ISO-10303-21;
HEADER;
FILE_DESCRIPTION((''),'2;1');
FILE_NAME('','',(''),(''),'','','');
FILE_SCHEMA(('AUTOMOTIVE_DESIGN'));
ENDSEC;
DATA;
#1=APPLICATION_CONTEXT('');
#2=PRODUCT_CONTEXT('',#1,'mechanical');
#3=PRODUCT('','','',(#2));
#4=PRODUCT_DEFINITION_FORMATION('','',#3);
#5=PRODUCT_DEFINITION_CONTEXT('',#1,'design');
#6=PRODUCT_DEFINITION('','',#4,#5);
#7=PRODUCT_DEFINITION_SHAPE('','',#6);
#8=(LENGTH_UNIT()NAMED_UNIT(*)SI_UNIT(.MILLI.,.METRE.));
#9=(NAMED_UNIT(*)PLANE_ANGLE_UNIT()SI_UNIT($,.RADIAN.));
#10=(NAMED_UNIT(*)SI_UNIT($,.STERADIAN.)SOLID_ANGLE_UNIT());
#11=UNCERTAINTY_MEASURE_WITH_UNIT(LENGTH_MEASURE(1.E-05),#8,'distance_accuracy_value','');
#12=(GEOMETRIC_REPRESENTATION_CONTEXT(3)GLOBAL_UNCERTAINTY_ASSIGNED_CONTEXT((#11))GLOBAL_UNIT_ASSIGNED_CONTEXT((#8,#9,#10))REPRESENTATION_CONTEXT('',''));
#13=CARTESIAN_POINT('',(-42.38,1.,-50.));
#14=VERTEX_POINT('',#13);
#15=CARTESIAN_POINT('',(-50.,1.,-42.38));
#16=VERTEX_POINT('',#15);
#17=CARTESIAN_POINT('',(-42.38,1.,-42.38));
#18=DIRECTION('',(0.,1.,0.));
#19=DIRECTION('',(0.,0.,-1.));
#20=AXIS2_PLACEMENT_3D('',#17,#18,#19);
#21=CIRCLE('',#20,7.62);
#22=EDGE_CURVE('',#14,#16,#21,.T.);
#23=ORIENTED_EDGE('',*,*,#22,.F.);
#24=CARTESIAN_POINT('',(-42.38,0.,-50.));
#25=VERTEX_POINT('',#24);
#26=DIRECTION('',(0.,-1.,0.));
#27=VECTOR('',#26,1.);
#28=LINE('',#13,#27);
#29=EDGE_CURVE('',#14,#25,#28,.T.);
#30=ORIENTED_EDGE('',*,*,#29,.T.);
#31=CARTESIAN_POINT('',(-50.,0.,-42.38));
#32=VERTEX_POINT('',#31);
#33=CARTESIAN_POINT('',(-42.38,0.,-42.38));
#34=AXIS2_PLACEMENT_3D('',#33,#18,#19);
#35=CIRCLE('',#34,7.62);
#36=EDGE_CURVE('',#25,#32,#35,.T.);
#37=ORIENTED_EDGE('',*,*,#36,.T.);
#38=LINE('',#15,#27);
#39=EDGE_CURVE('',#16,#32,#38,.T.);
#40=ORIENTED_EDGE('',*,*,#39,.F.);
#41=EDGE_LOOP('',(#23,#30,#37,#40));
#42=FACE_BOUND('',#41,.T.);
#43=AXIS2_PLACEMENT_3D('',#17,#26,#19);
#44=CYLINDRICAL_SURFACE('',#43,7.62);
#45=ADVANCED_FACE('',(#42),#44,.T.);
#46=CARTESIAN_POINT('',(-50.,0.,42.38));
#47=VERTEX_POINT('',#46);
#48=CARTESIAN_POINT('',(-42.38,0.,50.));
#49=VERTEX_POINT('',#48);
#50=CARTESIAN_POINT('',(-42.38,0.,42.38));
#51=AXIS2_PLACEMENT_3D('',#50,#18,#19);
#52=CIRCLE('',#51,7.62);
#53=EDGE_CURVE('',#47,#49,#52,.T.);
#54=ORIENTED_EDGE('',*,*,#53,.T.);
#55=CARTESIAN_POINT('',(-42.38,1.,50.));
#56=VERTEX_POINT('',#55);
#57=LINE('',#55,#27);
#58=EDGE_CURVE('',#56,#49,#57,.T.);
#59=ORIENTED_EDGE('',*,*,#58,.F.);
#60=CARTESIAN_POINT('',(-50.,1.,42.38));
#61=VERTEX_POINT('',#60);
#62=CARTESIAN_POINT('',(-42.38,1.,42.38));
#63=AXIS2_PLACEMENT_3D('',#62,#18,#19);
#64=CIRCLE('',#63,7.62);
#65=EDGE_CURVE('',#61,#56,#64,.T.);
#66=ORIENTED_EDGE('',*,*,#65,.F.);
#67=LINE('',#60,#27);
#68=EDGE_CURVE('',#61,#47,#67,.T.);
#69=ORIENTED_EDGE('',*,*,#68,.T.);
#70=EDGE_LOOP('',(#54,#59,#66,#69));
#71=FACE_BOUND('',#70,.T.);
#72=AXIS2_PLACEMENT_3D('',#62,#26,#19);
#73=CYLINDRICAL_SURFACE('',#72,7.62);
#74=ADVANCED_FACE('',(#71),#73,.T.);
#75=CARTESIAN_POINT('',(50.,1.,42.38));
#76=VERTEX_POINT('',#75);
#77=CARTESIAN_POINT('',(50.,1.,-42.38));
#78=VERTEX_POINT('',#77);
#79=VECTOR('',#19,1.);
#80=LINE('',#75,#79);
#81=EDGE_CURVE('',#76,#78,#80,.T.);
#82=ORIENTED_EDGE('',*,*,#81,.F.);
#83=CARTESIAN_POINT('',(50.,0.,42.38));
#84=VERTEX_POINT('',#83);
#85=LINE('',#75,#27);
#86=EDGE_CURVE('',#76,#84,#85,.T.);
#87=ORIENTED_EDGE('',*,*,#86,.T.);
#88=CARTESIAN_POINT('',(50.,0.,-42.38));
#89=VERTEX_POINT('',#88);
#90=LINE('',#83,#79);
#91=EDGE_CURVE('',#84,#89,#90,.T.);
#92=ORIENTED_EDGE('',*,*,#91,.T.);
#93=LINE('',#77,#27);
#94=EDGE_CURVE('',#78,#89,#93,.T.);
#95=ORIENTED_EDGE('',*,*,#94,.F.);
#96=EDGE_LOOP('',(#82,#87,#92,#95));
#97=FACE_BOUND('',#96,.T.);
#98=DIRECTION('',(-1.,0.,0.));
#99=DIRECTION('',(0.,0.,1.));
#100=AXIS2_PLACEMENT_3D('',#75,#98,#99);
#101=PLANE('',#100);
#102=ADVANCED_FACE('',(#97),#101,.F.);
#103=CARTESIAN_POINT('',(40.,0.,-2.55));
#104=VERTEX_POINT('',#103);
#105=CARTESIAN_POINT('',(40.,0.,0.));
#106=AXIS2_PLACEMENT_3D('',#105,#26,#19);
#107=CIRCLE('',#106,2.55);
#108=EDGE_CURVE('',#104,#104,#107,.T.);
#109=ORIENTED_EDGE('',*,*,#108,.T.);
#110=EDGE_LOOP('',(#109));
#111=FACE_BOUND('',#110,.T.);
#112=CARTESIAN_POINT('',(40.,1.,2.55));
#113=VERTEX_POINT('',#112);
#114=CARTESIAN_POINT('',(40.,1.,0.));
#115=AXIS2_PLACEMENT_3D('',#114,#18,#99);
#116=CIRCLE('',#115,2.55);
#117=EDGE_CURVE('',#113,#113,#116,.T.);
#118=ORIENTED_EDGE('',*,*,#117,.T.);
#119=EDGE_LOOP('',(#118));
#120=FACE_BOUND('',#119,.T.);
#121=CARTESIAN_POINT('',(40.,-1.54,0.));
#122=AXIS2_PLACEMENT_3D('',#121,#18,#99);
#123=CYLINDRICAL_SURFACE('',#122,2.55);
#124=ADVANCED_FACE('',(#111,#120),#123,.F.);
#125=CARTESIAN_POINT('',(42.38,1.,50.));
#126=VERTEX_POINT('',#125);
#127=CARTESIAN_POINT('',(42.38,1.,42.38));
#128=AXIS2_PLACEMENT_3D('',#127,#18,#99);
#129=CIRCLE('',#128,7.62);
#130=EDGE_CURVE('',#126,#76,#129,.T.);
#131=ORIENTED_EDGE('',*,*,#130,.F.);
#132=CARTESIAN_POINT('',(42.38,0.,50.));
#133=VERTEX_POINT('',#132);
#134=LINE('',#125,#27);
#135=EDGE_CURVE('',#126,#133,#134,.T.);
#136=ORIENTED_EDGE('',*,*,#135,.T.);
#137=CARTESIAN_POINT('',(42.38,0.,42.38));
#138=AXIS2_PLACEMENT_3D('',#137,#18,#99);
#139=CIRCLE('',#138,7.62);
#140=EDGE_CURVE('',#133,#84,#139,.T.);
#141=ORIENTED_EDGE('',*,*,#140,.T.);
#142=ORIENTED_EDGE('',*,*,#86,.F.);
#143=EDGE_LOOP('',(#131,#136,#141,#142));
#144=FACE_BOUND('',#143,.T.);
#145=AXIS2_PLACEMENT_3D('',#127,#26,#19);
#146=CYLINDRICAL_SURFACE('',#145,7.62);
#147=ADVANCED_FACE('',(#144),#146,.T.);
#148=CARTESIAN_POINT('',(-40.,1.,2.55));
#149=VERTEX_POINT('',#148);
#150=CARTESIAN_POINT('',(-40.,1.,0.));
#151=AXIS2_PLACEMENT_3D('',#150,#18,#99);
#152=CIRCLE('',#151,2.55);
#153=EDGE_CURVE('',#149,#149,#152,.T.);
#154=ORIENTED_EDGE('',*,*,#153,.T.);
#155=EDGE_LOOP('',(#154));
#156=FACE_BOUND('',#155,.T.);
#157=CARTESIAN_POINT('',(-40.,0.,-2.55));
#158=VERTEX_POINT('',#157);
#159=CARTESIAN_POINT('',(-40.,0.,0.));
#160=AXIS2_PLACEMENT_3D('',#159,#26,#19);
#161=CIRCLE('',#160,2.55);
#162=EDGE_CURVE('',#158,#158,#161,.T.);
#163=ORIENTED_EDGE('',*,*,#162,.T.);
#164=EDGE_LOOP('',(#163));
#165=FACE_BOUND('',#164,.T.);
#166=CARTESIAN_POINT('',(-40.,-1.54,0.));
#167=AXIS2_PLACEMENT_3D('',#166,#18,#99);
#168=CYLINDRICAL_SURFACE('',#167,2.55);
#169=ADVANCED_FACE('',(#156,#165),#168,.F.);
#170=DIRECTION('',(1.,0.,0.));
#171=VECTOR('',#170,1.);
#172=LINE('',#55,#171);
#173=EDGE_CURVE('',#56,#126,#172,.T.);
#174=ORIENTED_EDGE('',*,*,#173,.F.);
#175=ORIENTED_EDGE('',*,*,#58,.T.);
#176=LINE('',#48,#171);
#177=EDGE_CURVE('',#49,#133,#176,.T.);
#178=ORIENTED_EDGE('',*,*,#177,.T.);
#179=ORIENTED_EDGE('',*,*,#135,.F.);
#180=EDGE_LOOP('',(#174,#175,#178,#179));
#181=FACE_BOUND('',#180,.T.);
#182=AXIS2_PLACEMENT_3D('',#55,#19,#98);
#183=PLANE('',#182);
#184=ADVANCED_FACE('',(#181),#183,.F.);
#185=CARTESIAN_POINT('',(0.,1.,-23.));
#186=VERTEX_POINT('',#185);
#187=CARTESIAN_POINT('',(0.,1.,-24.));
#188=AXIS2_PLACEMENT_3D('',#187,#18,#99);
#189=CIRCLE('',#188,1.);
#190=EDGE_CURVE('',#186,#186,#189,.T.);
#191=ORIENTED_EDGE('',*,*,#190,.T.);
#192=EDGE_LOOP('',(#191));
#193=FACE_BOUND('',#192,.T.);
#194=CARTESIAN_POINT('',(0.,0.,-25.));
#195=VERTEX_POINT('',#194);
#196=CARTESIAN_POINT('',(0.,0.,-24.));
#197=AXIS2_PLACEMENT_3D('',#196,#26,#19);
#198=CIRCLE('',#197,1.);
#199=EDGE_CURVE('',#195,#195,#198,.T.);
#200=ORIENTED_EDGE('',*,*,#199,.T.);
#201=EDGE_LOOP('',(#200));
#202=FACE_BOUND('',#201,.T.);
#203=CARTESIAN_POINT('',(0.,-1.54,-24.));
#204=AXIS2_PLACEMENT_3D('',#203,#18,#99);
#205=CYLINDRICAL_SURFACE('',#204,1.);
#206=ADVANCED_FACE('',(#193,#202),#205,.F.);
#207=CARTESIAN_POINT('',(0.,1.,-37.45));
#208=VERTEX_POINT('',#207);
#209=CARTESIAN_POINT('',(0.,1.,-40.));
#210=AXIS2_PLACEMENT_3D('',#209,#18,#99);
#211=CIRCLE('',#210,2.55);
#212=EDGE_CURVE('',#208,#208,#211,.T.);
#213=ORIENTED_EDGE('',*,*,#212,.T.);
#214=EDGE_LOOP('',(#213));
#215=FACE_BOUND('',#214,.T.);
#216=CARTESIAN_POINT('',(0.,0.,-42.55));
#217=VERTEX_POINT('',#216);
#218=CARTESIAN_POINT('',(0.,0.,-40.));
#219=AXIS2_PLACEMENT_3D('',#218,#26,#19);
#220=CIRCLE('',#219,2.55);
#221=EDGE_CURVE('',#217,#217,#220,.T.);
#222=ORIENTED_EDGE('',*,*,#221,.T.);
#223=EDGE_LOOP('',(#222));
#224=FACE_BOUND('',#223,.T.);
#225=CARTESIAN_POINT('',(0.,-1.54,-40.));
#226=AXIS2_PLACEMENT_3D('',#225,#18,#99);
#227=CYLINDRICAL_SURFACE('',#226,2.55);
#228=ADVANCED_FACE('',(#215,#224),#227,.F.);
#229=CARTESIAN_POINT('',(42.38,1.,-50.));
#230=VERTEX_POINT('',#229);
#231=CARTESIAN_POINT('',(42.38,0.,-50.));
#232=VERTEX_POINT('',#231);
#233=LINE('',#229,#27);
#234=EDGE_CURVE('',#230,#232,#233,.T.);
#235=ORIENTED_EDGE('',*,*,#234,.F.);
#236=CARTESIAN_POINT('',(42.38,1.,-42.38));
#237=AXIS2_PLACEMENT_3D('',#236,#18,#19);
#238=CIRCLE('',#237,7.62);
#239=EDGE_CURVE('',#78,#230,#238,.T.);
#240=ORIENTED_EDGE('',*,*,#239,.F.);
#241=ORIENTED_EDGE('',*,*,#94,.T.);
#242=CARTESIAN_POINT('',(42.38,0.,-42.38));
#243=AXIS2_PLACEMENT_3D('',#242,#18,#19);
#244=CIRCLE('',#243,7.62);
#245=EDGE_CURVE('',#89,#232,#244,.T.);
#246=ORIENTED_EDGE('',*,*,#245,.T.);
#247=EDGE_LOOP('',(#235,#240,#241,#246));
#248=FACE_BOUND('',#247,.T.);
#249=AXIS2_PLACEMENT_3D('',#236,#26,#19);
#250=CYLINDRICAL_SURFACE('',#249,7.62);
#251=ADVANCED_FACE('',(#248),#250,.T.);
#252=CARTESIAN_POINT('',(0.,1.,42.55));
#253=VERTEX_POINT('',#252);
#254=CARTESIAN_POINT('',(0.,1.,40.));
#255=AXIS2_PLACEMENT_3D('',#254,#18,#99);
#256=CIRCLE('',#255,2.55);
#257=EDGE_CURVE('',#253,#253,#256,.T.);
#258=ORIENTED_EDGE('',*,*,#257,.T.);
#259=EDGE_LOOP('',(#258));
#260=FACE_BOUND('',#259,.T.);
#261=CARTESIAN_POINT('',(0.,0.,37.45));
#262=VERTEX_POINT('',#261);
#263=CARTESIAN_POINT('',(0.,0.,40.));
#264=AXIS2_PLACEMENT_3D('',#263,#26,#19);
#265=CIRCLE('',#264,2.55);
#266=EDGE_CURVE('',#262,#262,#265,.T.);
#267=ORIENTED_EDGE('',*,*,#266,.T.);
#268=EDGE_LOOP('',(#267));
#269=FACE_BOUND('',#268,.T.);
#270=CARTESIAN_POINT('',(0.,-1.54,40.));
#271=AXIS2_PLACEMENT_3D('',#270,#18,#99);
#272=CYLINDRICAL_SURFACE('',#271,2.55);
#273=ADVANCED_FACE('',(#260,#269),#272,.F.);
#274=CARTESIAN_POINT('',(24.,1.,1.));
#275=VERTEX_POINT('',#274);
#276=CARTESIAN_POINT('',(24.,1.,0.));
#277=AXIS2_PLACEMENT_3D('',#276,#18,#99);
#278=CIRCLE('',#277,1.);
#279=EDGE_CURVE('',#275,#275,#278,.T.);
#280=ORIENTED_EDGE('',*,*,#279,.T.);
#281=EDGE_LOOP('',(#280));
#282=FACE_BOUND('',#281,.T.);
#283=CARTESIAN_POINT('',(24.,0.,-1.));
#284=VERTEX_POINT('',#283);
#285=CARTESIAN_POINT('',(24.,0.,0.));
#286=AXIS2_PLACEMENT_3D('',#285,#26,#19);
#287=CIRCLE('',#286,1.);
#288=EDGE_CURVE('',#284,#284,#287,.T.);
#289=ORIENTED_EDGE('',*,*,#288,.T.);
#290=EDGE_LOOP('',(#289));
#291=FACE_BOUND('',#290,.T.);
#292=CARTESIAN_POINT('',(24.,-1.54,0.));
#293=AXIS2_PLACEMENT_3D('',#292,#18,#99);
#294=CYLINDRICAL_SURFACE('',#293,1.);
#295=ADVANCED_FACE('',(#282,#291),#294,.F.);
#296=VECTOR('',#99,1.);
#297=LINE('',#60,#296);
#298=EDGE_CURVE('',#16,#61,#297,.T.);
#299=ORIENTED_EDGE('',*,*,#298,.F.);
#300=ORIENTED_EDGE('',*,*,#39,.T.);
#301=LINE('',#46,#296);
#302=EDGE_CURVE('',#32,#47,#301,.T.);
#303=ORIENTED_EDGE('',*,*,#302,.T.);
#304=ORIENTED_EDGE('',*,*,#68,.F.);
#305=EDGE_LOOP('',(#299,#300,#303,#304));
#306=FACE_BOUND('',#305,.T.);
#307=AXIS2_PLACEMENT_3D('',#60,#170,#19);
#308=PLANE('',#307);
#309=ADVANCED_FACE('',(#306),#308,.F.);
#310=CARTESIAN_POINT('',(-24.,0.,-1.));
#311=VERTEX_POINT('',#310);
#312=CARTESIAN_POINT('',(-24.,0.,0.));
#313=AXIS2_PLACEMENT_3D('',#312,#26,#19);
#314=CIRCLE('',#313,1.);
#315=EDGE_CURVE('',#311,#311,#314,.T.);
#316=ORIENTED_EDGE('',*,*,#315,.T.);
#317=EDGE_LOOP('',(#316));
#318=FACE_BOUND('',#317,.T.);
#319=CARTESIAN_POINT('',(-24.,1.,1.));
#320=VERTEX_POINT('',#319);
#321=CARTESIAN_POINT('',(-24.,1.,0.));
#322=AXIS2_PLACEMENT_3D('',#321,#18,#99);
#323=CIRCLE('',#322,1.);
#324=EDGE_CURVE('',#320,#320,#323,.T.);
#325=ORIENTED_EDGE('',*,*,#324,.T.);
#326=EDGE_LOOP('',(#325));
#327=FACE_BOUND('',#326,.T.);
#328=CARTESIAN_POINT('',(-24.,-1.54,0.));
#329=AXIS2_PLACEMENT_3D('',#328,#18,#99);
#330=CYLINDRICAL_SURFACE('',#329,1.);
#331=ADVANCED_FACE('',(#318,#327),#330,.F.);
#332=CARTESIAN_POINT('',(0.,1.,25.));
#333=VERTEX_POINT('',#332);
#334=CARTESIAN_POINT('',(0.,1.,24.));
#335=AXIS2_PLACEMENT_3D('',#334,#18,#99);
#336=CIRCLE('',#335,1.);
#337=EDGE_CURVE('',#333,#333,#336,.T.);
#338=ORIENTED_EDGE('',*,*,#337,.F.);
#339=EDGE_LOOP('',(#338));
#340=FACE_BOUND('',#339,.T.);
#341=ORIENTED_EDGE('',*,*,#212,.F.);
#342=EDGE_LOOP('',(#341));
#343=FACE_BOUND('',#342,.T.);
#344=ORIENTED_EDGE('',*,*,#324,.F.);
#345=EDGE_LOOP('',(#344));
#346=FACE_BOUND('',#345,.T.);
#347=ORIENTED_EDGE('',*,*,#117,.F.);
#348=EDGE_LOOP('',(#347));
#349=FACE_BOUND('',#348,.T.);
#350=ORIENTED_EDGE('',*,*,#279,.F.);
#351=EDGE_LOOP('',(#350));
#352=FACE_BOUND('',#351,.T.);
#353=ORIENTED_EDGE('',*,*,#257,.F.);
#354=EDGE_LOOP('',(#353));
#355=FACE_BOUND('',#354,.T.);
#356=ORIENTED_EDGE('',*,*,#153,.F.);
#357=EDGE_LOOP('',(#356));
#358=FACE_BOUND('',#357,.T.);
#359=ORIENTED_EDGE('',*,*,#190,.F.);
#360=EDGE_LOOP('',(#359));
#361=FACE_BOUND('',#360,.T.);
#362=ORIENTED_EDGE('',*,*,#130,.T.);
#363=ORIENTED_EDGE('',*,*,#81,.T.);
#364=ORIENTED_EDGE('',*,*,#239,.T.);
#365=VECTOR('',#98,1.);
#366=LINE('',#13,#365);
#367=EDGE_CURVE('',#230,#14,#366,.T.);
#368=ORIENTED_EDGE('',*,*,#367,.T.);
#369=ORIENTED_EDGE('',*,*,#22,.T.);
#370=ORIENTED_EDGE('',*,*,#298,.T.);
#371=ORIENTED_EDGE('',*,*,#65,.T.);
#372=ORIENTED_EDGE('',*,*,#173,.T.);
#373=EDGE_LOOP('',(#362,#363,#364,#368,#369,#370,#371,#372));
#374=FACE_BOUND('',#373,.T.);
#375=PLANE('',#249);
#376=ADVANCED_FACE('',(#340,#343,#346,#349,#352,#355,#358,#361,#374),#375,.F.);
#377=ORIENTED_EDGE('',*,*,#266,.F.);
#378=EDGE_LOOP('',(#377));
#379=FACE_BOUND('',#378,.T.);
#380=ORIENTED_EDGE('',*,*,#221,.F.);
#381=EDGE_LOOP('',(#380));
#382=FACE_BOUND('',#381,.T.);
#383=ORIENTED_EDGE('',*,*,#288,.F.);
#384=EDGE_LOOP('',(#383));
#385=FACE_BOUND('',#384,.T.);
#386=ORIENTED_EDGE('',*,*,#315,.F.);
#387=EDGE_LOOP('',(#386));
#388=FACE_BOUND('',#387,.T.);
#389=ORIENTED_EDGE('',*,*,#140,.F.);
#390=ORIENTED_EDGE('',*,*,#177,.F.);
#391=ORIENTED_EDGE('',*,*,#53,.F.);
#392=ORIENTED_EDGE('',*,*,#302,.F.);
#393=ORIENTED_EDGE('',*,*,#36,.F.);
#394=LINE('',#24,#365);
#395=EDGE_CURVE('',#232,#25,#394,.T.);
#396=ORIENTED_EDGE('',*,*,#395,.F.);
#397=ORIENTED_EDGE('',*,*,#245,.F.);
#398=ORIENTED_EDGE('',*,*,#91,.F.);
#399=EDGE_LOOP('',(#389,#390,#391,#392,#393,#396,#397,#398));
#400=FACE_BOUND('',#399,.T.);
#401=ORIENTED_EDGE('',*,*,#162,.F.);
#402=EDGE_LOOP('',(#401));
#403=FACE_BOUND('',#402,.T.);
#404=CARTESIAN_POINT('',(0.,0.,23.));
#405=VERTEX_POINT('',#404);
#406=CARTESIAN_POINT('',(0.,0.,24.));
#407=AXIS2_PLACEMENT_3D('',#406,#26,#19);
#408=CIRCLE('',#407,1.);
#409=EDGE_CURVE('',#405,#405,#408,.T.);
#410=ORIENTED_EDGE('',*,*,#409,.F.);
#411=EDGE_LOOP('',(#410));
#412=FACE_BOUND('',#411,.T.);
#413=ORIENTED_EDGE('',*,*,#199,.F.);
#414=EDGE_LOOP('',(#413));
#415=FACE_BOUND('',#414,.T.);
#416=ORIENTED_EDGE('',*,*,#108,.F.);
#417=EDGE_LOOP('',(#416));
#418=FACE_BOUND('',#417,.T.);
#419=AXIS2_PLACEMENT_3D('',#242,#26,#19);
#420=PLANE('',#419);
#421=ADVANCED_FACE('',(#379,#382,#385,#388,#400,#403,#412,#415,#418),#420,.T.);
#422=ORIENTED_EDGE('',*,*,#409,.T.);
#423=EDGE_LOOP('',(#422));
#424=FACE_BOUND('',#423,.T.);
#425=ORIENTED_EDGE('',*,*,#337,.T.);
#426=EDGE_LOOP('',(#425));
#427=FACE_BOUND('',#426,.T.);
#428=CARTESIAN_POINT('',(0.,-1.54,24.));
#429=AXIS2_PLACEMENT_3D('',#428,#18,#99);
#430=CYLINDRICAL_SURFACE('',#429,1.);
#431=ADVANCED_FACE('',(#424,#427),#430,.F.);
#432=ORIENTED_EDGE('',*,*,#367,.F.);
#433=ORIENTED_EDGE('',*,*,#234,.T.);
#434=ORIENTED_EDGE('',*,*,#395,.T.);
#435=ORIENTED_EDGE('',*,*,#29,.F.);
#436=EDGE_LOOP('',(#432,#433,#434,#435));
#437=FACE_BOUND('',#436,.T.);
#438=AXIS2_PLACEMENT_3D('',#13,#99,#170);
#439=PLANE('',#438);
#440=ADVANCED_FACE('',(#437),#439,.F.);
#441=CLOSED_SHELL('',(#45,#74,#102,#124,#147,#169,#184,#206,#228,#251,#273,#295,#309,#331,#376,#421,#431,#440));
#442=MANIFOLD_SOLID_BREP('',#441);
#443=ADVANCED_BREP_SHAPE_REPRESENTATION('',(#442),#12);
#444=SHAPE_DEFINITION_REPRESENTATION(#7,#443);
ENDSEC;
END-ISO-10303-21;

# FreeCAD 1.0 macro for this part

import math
import FreeCAD as App
import Part
import Sketcher

doc = App.newDocument("Part")
body = doc.addObject("PartDesign::Body", "Body")

# Sketch on XZ plane
sketch1 = body.newObject("Sketcher::SketchObject", "Sketch")
sketch1.AttachmentSupport = (doc.getObject("XZ_Plane"), [""])
sketch1.MapMode = "FlatFace"
sketch1.addGeometry([
    Part.LineSegment(App.Vector(-42.38, 50, 0), App.Vector(42.38, 50, 0)),  # 0
    Part.ArcOfCircle(Part.Circle(App.Vector(42.38, 42.38, 0), App.Vector(0, 0, 1), 7.62), math.radians(0), math.radians(90)),  # 1
    Part.LineSegment(App.Vector(50, 42.38, 0), App.Vector(50, -42.38, 0)),  # 2
    Part.ArcOfCircle(Part.Circle(App.Vector(42.38, -42.38, 0), App.Vector(0, 0, 1), 7.62), math.radians(-90), math.radians(0)),  # 3
    Part.LineSegment(App.Vector(42.38, -50, 0), App.Vector(-42.38, -50, 0)),  # 4
    Part.ArcOfCircle(Part.Circle(App.Vector(-42.38, -42.38, 0), App.Vector(0, 0, 1), 7.62), math.radians(180), math.radians(270)),  # 5
    Part.LineSegment(App.Vector(-50, -42.38, 0), App.Vector(-50, 42.38, 0)),  # 6
    Part.ArcOfCircle(Part.Circle(App.Vector(-42.38, 42.38, 0), App.Vector(0, 0, 1), 7.62), math.radians(90), math.radians(180)),  # 7
], False)
sketch1.addConstraint([
    Sketcher.Constraint("Tangent", 0, 2, 1, 2),
    Sketcher.Constraint("Tangent", 1, 1, 2, 1),
    Sketcher.Constraint("Tangent", 2, 2, 3, 2),
    Sketcher.Constraint("Tangent", 3, 1, 4, 1),
    Sketcher.Constraint("Tangent", 4, 2, 5, 2),
    Sketcher.Constraint("Tangent", 5, 1, 6, 1),
    Sketcher.Constraint("Tangent", 6, 2, 7, 2),
    Sketcher.Constraint("Tangent", 7, 1, 0, 1),
    Sketcher.Constraint("Horizontal", 0),
    Sketcher.Constraint("Vertical", 2),
    Sketcher.Constraint("Horizontal", 4),
    Sketcher.Constraint("Vertical", 6),
    Sketcher.Constraint("Equal", 1, 3),
    Sketcher.Constraint("Equal", 3, 5),
    Sketcher.Constraint("Equal", 5, 7),
    Sketcher.Constraint("Symmetric", 1, 3, 5, 3, -1, 1),
    Sketcher.Constraint("Equal", 4, 2),
    Sketcher.Constraint("Radius", 1, 7.62),
    Sketcher.Constraint("DistanceY", -1, 1, 0, 2, 50.0),
])
pad1 = body.newObject("PartDesign::Pad", "Pad")
pad1.Profile = sketch1
pad1.Length = 1
pad1.Reversed = True

# Sketch on XZ plane
sketch2 = body.newObject("Sketcher::SketchObject", "Sketch001")
sketch2.AttachmentSupport = (doc.getObject("XZ_Plane"), [""])
sketch2.MapMode = "FlatFace"
sketch2.AttachmentOffset = App.Placement(App.Vector(0, 0, -1), App.Rotation())
sketch2.addGeometry([
    Part.Circle(App.Vector(0, -40, 0), App.Vector(0, 0, 1), 2.55),
    Part.Circle(App.Vector(40, 0, 0), App.Vector(0, 0, 1), 2.55),
    Part.Circle(App.Vector(0, 40, 0), App.Vector(0, 0, 1), 2.55),
    Part.Circle(App.Vector(-40, 0, 0), App.Vector(0, 0, 1), 2.55),
], False)
sketch2.addConstraint([
    Sketcher.Constraint("Equal", 0, 1),
    Sketcher.Constraint("Equal", 1, 2),
    Sketcher.Constraint("Equal", 2, 3),
    Sketcher.Constraint("Symmetric", 0, 3, 2, 3, -1, 1),
    Sketcher.Constraint("Symmetric", 1, 3, 3, 3, -1, 1),
    Sketcher.Constraint("PointOnObject", 0, 3, -2),
    Sketcher.Constraint("PointOnObject", 1, 3, -1),
    Sketcher.Constraint("Diameter", 0, 5.1),
    Sketcher.Constraint("DistanceY", 0, 3, -1, 1, 40.0),
    Sketcher.Constraint("DistanceX", -1, 1, 1, 3, 40.0),
])
pocket1 = body.newObject("PartDesign::Pocket", "Pocket")
pocket1.Profile = sketch2
pocket1.Length = 2.54
pocket1.Reversed = True

# Sketch on XZ plane
sketch3 = body.newObject("Sketcher::SketchObject", "Sketch002")
sketch3.AttachmentSupport = (doc.getObject("XZ_Plane"), [""])
sketch3.MapMode = "FlatFace"
sketch3.AttachmentOffset = App.Placement(App.Vector(0, 0, -1), App.Rotation())
sketch3.addGeometry([
    Part.Circle(App.Vector(0, -24, 0), App.Vector(0, 0, 1), 1),
    Part.Circle(App.Vector(24, 0, 0), App.Vector(0, 0, 1), 1),
    Part.Circle(App.Vector(0, 24, 0), App.Vector(0, 0, 1), 1),
    Part.Circle(App.Vector(-24, 0, 0), App.Vector(0, 0, 1), 1),
], False)
sketch3.addConstraint([
    Sketcher.Constraint("Equal", 0, 1),
    Sketcher.Constraint("Equal", 1, 2),
    Sketcher.Constraint("Equal", 2, 3),
    Sketcher.Constraint("Symmetric", 0, 3, 2, 3, -1, 1),
    Sketcher.Constraint("Symmetric", 1, 3, 3, 3, -1, 1),
    Sketcher.Constraint("PointOnObject", 0, 3, -2),
    Sketcher.Constraint("PointOnObject", 1, 3, -1),
    Sketcher.Constraint("Diameter", 0, 2.0),
    Sketcher.Constraint("DistanceY", 0, 3, -1, 1, 24.0),
    Sketcher.Constraint("DistanceX", -1, 1, 1, 3, 24.0),
])
pocket2 = body.newObject("PartDesign::Pocket", "Pocket001")
pocket2.Profile = sketch3
pocket2.Length = 2.54
pocket2.Reversed = True

doc.recompute()
